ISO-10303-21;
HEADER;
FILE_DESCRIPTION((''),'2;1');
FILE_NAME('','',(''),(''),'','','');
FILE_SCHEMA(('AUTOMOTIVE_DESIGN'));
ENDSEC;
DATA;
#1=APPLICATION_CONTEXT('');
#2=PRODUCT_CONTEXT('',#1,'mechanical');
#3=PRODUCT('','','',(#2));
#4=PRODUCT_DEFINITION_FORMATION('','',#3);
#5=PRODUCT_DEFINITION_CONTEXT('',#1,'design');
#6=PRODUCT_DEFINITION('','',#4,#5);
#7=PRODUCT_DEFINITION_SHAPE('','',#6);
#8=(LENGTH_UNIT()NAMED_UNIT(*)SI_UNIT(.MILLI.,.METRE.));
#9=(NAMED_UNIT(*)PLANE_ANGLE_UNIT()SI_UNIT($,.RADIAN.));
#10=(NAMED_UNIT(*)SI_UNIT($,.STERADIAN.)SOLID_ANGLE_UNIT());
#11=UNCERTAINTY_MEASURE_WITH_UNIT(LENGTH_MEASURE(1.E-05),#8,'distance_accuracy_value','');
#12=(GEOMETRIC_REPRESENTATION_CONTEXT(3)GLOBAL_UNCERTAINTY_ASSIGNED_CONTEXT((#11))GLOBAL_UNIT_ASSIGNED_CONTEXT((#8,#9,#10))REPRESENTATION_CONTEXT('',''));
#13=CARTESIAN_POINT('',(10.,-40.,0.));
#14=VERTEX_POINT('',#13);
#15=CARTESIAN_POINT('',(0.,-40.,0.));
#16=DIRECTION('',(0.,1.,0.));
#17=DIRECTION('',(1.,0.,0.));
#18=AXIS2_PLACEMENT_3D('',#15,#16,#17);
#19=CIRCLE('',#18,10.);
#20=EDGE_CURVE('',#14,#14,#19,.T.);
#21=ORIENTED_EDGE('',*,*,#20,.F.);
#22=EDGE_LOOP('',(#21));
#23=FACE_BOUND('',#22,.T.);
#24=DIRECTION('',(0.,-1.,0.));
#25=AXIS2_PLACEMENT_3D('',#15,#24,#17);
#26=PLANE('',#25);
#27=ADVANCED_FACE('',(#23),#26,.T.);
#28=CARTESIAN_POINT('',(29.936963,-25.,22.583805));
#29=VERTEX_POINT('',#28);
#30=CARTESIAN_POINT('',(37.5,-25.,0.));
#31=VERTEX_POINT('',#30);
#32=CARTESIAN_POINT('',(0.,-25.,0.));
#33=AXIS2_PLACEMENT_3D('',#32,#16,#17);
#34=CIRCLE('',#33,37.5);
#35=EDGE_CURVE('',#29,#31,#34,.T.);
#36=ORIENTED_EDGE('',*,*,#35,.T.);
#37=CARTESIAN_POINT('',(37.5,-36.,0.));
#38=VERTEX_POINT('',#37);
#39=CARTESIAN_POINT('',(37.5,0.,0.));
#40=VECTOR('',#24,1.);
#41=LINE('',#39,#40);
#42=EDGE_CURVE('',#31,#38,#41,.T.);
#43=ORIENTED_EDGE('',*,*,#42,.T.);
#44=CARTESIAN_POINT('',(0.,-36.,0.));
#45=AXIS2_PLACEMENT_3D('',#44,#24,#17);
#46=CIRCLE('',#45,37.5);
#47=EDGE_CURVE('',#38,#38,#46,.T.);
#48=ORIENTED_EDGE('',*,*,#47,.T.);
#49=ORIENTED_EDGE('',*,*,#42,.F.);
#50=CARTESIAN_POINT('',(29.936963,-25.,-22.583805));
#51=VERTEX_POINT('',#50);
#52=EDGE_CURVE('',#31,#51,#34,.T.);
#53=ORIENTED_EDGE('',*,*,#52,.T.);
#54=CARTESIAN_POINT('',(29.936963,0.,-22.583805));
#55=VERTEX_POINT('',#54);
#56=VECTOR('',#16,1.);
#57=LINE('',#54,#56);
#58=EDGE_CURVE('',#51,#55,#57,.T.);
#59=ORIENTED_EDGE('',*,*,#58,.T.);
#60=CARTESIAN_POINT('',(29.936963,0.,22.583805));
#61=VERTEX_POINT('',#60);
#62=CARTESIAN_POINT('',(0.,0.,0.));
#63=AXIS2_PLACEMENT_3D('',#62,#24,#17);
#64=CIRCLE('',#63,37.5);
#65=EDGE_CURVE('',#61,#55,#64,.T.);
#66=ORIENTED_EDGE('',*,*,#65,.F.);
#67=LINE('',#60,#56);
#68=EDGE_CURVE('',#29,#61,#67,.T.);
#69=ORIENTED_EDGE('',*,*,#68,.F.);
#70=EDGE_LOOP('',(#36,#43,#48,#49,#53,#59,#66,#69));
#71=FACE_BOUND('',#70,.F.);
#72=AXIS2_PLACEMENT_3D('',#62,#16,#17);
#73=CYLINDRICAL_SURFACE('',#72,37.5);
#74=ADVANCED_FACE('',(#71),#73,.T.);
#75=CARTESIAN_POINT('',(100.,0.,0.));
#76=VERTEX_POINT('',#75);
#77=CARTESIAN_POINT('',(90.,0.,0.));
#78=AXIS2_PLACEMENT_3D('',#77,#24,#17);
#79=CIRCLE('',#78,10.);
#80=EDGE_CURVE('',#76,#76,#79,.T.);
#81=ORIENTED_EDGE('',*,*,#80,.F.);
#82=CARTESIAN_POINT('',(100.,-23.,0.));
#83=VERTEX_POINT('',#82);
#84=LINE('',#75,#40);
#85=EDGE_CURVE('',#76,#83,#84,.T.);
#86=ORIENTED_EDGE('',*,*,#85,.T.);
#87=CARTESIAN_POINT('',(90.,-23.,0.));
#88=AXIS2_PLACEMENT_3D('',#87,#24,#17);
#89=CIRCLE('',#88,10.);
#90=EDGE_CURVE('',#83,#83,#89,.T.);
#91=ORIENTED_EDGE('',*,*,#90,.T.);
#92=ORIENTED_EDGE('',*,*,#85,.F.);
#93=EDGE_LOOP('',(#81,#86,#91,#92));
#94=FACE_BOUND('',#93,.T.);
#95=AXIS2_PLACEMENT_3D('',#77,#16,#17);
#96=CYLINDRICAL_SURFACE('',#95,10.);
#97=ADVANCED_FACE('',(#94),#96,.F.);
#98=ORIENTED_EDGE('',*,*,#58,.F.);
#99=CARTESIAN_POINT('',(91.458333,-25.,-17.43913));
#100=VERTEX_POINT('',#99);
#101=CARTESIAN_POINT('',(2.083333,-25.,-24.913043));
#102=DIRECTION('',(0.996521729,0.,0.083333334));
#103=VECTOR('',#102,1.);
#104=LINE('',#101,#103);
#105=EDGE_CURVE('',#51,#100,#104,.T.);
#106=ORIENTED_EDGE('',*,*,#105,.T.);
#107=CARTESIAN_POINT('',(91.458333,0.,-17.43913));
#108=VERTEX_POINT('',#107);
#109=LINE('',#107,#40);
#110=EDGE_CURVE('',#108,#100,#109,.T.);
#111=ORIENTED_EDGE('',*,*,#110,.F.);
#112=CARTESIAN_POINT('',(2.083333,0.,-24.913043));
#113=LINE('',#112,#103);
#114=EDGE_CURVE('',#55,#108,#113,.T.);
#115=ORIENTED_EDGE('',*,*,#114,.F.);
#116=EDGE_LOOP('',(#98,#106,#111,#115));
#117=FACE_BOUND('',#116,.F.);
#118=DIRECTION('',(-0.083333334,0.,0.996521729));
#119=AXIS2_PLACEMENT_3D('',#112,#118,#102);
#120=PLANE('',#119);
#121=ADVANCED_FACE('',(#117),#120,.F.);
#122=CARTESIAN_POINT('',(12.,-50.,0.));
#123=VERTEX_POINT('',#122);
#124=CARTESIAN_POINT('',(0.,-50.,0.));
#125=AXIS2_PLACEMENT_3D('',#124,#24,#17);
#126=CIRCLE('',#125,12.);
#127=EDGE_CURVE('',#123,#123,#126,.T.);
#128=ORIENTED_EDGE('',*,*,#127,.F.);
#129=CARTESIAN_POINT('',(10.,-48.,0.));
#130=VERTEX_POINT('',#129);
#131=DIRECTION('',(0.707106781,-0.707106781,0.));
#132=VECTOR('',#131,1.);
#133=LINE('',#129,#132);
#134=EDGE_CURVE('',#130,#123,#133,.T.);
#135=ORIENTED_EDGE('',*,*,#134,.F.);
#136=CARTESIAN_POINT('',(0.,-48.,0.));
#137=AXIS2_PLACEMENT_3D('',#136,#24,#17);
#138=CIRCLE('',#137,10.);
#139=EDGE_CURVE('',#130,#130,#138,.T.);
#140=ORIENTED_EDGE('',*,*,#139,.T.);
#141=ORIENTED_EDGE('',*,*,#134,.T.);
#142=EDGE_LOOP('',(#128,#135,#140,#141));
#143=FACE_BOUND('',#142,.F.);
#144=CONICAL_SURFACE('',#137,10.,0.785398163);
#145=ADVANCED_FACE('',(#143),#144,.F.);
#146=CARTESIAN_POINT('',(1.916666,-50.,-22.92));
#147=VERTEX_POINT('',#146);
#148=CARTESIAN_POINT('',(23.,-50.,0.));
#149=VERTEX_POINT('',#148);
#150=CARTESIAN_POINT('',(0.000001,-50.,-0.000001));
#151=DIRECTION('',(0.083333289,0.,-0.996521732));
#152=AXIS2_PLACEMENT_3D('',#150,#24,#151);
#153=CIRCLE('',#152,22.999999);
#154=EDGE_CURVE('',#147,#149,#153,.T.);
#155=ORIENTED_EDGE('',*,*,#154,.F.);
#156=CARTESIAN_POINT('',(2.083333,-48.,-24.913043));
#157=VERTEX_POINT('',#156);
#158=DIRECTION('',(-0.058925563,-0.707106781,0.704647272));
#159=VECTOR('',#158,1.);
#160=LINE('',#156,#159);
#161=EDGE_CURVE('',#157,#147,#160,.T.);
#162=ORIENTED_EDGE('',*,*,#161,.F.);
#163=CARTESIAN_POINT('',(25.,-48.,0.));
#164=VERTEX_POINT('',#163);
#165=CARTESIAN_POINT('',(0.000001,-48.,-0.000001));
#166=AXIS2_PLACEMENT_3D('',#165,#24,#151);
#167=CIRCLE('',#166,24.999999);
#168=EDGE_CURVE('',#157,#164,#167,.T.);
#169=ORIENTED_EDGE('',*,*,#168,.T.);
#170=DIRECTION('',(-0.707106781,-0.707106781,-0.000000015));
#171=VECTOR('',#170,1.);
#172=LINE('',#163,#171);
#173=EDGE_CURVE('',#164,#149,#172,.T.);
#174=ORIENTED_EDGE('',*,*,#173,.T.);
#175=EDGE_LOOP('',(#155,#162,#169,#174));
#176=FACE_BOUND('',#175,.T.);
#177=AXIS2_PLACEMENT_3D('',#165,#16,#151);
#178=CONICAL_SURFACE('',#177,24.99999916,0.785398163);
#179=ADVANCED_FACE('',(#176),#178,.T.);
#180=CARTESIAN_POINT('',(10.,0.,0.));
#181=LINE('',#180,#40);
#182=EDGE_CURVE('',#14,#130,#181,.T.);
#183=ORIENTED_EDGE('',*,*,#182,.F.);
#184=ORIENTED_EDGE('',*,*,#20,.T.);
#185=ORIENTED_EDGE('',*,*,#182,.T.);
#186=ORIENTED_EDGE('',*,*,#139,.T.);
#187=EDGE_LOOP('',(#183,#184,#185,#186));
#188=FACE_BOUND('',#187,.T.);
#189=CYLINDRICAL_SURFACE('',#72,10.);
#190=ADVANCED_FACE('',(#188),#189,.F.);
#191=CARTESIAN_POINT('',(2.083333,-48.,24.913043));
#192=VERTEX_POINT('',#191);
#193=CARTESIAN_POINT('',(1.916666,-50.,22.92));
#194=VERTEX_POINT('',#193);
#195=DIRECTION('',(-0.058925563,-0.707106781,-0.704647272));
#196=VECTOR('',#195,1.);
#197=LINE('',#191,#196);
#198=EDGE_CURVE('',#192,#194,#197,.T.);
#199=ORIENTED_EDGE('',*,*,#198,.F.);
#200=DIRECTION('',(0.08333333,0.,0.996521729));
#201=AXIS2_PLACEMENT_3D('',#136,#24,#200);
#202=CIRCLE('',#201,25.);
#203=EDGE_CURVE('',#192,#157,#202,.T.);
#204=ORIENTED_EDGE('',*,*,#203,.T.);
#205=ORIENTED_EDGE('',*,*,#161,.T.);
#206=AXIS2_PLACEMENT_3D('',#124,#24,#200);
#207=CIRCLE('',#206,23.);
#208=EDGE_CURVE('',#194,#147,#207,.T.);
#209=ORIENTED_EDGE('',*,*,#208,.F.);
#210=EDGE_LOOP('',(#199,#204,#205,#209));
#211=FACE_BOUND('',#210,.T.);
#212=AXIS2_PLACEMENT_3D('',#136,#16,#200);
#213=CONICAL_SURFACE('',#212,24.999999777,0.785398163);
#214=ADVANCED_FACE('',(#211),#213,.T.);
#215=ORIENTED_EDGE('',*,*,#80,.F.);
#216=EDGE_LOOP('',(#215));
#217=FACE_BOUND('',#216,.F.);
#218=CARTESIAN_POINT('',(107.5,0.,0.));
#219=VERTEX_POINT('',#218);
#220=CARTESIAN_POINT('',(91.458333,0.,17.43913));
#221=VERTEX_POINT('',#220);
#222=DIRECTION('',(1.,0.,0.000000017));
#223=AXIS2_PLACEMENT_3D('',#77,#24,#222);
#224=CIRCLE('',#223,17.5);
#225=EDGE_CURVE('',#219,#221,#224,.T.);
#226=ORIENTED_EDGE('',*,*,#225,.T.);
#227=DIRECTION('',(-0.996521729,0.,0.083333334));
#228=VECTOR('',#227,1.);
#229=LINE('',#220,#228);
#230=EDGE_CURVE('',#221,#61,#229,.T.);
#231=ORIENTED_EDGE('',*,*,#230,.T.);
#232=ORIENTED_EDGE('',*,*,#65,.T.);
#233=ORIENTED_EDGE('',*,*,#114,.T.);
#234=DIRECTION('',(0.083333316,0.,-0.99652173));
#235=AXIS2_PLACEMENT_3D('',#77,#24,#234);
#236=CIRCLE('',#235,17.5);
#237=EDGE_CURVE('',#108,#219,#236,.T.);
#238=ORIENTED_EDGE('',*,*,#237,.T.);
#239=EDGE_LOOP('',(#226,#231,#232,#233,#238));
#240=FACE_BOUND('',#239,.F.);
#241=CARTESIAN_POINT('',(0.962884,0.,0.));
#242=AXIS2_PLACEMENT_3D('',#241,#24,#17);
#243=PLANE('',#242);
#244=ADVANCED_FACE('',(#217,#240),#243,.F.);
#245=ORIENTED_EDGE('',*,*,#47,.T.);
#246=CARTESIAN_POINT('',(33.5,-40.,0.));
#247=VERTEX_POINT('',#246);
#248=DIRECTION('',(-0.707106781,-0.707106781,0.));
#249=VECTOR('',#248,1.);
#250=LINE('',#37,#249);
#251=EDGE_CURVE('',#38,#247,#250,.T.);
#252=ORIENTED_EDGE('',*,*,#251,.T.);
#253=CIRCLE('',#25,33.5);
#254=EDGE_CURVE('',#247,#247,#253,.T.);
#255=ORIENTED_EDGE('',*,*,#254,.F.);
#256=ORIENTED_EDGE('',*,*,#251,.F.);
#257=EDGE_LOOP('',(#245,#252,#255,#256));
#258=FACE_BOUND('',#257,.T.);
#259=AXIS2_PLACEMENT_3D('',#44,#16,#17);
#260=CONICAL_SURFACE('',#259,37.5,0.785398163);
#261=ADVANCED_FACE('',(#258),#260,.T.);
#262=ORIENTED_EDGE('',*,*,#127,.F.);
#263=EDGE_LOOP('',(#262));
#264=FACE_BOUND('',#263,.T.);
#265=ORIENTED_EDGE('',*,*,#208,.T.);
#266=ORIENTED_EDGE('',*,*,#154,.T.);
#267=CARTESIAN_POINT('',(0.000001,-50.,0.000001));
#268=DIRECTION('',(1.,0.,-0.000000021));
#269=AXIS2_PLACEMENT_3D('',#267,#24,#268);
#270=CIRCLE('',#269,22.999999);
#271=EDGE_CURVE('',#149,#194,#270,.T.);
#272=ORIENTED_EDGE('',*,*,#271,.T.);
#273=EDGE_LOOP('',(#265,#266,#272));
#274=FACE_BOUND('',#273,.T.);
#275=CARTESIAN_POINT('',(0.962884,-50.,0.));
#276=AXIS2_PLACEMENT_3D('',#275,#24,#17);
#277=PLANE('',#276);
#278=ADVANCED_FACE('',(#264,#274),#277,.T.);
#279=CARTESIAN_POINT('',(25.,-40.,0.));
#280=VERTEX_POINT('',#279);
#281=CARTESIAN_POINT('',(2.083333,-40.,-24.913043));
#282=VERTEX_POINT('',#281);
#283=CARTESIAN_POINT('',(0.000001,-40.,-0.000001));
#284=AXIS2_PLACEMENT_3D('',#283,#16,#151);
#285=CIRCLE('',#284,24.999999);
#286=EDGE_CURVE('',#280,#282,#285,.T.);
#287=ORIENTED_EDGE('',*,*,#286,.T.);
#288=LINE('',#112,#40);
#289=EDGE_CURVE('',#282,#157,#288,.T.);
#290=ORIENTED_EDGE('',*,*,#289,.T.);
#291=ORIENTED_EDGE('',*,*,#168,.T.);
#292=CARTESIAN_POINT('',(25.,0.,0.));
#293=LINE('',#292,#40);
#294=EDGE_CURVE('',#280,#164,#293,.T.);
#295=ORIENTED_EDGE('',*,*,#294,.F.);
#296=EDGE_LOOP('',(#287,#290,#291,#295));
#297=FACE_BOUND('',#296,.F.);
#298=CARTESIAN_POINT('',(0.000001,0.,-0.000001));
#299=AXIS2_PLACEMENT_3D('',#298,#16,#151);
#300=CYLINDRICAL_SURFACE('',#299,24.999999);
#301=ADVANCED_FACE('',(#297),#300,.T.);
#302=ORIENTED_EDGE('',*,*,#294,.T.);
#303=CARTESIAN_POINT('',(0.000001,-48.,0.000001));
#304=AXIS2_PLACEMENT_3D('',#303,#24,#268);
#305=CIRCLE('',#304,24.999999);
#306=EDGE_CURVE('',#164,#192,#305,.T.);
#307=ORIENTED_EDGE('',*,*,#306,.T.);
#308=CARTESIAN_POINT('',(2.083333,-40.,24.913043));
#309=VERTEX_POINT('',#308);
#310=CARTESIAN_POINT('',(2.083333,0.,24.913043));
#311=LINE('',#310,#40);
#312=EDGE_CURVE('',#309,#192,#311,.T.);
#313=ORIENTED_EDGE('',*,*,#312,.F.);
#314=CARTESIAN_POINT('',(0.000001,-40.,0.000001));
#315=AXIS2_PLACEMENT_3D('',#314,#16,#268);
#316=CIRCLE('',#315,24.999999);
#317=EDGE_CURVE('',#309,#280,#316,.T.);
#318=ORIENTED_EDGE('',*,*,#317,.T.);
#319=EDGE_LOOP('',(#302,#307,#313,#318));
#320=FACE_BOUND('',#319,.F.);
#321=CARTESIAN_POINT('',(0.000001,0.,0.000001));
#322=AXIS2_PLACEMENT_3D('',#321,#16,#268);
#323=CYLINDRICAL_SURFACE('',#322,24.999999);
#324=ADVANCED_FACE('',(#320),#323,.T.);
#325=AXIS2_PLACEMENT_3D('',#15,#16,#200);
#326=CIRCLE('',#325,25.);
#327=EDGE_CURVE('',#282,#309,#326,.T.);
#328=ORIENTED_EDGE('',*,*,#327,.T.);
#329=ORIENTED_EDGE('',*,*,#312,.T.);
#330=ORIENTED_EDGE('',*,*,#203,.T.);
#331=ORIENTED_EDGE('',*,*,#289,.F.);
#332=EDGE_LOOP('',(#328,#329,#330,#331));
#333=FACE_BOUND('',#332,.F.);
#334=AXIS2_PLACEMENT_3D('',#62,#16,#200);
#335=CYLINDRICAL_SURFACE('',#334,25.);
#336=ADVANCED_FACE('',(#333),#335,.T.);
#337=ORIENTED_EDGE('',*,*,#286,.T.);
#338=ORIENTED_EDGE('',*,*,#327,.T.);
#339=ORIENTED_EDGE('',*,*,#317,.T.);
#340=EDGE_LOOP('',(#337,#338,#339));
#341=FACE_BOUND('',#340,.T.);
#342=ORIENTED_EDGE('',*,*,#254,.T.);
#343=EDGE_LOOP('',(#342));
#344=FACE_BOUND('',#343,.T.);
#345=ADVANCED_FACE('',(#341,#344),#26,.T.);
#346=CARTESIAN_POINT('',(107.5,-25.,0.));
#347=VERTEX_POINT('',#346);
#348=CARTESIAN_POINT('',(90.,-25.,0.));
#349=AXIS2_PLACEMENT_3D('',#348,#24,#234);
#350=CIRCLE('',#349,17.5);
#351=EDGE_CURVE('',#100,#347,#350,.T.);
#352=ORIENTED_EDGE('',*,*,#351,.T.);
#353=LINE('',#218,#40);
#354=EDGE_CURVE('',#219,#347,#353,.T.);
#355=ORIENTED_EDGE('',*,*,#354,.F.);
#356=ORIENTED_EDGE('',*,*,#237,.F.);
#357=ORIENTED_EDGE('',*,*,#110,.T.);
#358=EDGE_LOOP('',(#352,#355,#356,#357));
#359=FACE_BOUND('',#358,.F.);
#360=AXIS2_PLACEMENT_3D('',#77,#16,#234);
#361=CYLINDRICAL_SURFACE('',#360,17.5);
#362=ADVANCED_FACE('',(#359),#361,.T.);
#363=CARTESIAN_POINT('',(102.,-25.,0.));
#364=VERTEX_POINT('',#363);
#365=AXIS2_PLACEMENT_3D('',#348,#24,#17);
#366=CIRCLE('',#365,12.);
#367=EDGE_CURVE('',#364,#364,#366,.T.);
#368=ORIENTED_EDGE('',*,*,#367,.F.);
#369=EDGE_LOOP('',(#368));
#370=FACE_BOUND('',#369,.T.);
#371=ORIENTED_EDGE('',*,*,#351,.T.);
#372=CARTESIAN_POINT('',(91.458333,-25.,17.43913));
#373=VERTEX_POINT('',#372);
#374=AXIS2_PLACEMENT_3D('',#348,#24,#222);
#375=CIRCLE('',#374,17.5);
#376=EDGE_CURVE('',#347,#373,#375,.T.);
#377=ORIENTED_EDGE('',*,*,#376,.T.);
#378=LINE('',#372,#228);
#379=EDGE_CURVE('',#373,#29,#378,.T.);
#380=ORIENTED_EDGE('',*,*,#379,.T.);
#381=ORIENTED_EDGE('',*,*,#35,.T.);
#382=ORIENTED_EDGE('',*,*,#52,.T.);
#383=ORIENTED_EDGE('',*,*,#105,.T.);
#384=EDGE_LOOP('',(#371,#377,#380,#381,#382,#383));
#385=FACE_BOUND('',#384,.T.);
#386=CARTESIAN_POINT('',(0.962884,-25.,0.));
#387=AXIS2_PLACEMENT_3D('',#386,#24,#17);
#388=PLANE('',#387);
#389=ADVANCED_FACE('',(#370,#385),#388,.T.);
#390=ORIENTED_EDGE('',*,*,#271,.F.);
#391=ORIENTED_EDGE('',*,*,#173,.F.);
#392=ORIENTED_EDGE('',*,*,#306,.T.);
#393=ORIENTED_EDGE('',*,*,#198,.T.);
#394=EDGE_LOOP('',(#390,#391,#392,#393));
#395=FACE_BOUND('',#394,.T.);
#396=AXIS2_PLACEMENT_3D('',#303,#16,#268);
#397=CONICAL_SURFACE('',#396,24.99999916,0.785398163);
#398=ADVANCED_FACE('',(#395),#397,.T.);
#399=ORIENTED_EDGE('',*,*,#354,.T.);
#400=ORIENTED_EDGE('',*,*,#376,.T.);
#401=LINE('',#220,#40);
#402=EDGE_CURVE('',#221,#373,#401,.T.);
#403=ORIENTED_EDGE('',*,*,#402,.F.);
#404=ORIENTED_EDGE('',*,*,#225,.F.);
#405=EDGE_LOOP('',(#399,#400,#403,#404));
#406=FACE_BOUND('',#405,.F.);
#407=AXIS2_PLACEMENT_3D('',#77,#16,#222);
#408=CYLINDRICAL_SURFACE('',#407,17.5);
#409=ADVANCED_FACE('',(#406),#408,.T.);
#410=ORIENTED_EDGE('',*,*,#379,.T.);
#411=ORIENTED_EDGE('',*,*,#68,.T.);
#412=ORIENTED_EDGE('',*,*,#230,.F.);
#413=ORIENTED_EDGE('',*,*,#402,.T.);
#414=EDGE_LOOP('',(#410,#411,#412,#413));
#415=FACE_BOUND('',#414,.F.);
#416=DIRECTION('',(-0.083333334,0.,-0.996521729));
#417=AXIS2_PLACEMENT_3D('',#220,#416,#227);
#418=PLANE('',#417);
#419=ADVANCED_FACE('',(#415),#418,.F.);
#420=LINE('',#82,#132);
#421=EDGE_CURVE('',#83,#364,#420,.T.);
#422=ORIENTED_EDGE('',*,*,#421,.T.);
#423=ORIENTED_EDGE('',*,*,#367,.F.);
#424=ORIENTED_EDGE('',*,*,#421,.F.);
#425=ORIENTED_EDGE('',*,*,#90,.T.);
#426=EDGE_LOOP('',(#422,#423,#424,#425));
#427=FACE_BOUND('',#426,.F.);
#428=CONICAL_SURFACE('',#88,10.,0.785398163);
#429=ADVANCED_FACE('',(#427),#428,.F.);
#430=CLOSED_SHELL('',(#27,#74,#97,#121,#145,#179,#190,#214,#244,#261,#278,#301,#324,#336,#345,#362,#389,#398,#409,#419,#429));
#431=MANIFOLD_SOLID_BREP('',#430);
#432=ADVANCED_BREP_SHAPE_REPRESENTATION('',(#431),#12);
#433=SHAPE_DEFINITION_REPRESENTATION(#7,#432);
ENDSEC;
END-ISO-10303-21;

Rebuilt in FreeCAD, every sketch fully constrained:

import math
import FreeCAD as App
import Part
import Sketcher
from FreeCAD import Vector


def edges_at(feature, points):
    """Names of the edges that pass closest to the given points."""
    edges = feature.Shape.Edges
    near = lambda p: min(range(len(edges)), key=lambda i: edges[i].distToShape(Part.Vertex(*p))[0])
    return sorted({f"Edge{near(p) + 1}" for p in points})

doc = App.newDocument("Part")
body = doc.addObject("PartDesign::Body", "Body")

sketch1 = body.newObject("Sketcher::SketchObject", "Sketch")
sketch1.AttachmentSupport = (doc.getObject("XZ_Plane"), [""])
sketch1.MapMode = "FlatFace"
sketch1.addGeometry([
    Part.ArcOfCircle(Part.Circle(Vector(0, 0, 0), Vector(0, 0, 1), 25), math.radians(85), math.radians(275)),
    Part.LineSegment(Vector(2, -25, 0), Vector(91, -17, 0)),
    Part.ArcOfCircle(Part.Circle(Vector(90, 0, 0), Vector(0, 0, 1), 18), math.radians(-85), math.radians(0)),
    Part.ArcOfCircle(Part.Circle(Vector(90, 0, 0), Vector(0, 0, 1), 18), math.radians(0), math.radians(85)),
    Part.LineSegment(Vector(91, 17, 0), Vector(2, 25, 0)),
    Part.Circle(Vector(0, 0, 0), Vector(0, 0, 1), 10),
    Part.Circle(Vector(90, 0, 0), Vector(0, 0, 1), 10),
], False)
sketch1.addConstraint([
    Sketcher.Constraint("Tangent", 0, 2, 1, 1),
    Sketcher.Constraint("Tangent", 1, 2, 2, 1),
    Sketcher.Constraint("Tangent", 2, 2, 3, 1),
    Sketcher.Constraint("Tangent", 3, 2, 4, 1),
    Sketcher.Constraint("Tangent", 4, 2, 0, 1),
    Sketcher.Constraint("Coincident", 0, 3, -1, 1),
    Sketcher.Constraint("Coincident", 5, 3, -1, 1),
    Sketcher.Constraint("Coincident", 6, 3, 2, 3),
    Sketcher.Constraint("Equal", 2, 3),
    Sketcher.Constraint("Equal", 5, 6),
    Sketcher.Constraint("PointOnObject", 2, 3, -1),
    Sketcher.Constraint("PointOnObject", 2, 2, -1),
    Sketcher.Constraint("Diameter", 5, 20.0),
    Sketcher.Constraint("Radius", 0, 25.0),
    Sketcher.Constraint("Radius", 2, 17.5),
    Sketcher.Constraint("DistanceX", -1, 1, 2, 3, 90.0),
])
pad1 = body.newObject("PartDesign::Pad", "Pad")
pad1.Profile = sketch1
pad1.Length = 25

sketch2 = body.newObject("Sketcher::SketchObject", "Sketch001")
sketch2.AttachmentSupport = (doc.getObject("XZ_Plane"), [""])
sketch2.MapMode = "FlatFace"
sketch2.addGeometry([
    Part.ArcOfCircle(Part.Circle(Vector(0, 0, 0), Vector(0, 0, 1), 25), math.radians(-85), math.radians(0)),
    Part.ArcOfCircle(Part.Circle(Vector(0, 0, 0), Vector(0, 0, 1), 25), math.radians(0), math.radians(85)),
    Part.ArcOfCircle(Part.Circle(Vector(0, 0, 0), Vector(0, 0, 1), 25), math.radians(85), math.radians(275)),
    Part.Circle(Vector(0, 0, 0), Vector(0, 0, 1), 10),
], False)
sketch2.addConstraint([
    Sketcher.Constraint("Tangent", 0, 2, 1, 1),
    Sketcher.Constraint("Tangent", 1, 2, 2, 1),
    Sketcher.Constraint("Tangent", 2, 2, 0, 1),
    Sketcher.Constraint("Coincident", 0, 3, -1, 1),
    Sketcher.Constraint("Coincident", 3, 3, -1, 1),
    Sketcher.Constraint("PointOnObject", 0, 2, -1),
    Sketcher.Constraint("Vertical", 1, 2, 2, 2),
    Sketcher.Constraint("Diameter", 3, 20.0),
    Sketcher.Constraint("Radius", 0, 24.999999),
    Sketcher.Constraint("DistanceX", -1, 1, 1, 2, 2.083333),
])
pad2 = body.newObject("PartDesign::Pad", "Pad001")
pad2.Profile = sketch2
pad2.Length = 50
doc.recompute()

chamfer = body.newObject("PartDesign::Chamfer", "Chamfer")
chamfer.Base = (pad2, edges_at(pad2, [(-25, -50, 0), (-10, -50, 0), (80, -25, 0)]))
chamfer.Size = 2

sketch3 = body.newObject("Sketcher::SketchObject", "Sketch002")
sketch3.AttachmentSupport = (doc.getObject("XZ_Plane"), [""])
sketch3.MapMode = "FlatFace"
sketch3.addGeometry(Part.Circle(Vector(0, 0, 0), Vector(0, 0, 1), 38), False)
sketch3.addConstraint([
    Sketcher.Constraint("Coincident", 0, 3, -1, 1),
    Sketcher.Constraint("Diameter", 0, 75.0),
])
pad3 = body.newObject("PartDesign::Pad", "Pad002")
pad3.Profile = sketch3
pad3.Length = 40
doc.recompute()

chamfer2 = body.newObject("PartDesign::Chamfer", "Chamfer001")
chamfer2.Base = (pad3, edges_at(pad3, [(-37.5, -40, 0)]))
chamfer2.Size = 4

doc.recompute()
